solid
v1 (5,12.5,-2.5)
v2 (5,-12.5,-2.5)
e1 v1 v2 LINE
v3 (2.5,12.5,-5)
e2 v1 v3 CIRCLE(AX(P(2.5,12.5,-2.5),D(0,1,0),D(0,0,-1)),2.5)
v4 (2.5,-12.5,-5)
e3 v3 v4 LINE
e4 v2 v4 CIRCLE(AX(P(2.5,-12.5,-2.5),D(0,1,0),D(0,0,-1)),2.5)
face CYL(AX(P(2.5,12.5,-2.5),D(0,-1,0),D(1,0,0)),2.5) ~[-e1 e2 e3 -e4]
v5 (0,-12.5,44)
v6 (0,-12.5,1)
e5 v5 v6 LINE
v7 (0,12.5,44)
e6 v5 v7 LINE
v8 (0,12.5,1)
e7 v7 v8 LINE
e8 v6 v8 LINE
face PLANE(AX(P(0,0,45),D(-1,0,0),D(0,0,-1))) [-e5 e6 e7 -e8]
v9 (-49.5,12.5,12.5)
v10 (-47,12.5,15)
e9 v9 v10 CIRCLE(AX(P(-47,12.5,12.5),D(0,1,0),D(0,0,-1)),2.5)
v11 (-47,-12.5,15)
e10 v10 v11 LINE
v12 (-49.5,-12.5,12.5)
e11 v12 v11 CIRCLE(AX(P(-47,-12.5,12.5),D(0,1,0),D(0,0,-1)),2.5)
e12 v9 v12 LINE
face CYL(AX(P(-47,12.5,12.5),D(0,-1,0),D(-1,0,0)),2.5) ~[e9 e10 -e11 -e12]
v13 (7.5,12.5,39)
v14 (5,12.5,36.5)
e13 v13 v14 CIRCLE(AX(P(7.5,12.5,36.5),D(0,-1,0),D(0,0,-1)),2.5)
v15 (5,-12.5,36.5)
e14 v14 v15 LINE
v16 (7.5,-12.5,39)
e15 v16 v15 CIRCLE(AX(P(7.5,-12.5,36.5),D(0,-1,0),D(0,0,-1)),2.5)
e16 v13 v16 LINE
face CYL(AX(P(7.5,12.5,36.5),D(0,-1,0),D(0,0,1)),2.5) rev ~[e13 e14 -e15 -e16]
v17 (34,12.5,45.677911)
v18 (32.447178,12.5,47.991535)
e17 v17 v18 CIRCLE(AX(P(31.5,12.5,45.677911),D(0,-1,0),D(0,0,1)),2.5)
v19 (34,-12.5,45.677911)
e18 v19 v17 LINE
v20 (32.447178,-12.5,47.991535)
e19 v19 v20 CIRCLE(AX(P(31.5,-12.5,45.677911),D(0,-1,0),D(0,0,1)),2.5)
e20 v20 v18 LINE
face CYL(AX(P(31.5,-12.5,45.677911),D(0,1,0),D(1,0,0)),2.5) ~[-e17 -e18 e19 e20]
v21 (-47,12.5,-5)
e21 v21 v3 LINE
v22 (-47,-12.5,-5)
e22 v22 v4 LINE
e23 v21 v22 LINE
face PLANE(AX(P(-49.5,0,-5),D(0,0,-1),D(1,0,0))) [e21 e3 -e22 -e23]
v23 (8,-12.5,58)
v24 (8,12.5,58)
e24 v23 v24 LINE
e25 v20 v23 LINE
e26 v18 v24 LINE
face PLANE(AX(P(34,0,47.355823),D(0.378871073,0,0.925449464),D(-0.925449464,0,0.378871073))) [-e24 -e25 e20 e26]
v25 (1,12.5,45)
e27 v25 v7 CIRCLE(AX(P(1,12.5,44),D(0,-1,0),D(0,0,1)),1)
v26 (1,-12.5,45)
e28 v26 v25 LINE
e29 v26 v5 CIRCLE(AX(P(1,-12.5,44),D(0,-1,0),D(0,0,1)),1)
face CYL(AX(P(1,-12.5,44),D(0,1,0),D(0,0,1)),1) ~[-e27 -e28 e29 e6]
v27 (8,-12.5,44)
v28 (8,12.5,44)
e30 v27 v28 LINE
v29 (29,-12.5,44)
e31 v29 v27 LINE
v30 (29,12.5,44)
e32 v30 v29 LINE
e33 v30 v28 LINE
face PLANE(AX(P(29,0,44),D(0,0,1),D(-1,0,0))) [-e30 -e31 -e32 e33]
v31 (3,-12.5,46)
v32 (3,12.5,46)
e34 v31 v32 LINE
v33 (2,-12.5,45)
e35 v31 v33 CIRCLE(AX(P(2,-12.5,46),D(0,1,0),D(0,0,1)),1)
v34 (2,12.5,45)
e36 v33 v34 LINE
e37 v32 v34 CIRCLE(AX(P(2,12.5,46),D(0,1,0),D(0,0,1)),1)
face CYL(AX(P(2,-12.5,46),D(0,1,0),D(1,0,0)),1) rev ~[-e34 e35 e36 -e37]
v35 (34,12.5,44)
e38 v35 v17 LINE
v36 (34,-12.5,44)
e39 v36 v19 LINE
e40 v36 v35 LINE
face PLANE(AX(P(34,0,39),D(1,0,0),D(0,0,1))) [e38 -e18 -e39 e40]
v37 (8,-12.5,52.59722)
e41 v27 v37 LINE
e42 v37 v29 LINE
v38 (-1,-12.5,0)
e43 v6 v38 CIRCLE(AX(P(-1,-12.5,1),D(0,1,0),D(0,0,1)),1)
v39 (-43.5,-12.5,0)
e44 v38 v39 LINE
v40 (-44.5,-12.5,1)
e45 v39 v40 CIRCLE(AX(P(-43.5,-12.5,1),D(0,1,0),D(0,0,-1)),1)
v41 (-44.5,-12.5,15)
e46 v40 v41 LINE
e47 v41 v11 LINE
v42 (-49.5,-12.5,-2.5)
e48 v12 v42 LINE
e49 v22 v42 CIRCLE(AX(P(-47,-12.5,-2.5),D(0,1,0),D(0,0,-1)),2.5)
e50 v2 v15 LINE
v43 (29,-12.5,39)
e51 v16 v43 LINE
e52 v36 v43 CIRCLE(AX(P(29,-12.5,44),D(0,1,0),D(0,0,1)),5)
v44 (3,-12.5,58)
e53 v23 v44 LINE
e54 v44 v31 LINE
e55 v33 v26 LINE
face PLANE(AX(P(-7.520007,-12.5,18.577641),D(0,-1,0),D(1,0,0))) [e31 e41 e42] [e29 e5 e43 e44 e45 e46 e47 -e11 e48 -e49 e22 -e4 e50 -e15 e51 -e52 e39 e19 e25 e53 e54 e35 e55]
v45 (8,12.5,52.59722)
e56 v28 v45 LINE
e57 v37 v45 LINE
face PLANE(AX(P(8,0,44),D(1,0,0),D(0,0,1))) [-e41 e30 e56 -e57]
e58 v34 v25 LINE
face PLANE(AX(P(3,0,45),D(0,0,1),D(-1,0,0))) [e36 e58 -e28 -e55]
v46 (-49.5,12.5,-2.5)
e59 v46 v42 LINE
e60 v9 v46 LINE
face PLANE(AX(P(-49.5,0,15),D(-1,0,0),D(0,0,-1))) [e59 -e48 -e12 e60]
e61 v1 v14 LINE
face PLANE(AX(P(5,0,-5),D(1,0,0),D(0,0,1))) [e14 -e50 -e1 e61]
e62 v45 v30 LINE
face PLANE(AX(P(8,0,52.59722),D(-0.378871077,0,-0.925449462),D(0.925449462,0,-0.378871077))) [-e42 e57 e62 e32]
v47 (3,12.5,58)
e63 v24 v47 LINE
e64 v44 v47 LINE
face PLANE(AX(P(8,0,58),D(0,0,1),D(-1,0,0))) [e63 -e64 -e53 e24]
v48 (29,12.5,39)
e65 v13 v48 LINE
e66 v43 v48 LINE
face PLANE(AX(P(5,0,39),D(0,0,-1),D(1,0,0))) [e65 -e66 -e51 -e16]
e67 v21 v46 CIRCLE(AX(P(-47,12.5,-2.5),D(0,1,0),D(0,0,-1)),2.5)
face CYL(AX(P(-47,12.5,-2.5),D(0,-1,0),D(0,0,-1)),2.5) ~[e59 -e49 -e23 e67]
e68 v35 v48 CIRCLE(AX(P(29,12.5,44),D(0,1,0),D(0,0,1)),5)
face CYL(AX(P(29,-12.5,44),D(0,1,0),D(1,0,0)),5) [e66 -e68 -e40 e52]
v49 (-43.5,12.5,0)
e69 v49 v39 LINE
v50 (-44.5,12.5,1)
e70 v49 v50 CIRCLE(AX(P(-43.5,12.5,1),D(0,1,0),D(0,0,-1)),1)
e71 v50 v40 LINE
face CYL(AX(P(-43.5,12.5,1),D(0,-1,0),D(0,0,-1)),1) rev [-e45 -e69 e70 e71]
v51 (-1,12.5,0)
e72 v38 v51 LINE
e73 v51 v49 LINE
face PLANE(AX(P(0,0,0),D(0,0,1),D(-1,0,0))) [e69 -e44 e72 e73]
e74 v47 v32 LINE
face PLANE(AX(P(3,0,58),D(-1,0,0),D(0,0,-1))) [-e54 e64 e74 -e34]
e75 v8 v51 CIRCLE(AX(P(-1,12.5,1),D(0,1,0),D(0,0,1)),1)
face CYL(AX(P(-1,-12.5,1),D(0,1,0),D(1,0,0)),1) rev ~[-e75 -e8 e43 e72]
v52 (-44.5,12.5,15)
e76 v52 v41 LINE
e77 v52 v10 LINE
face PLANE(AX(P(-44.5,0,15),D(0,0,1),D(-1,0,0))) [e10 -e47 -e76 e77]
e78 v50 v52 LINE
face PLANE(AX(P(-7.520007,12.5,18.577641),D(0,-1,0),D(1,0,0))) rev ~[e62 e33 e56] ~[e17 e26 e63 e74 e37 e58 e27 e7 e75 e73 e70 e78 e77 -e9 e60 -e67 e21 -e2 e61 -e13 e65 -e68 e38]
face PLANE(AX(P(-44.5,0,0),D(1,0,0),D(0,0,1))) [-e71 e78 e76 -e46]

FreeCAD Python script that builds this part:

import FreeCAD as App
import Part
import Sketcher
Q = App.Units.Quantity


def edges_at(feature, points):
    """Names of the edges that pass closest to the given points."""
    edges = feature.Shape.Edges
    near = lambda p: min(range(len(edges)), key=lambda i: edges[i].distToShape(Part.Vertex(*p))[0])
    return sorted({f"Edge{near(p) + 1}" for p in points})


def add_polygon(sketch, points):
    """Adds a closed chain of lines whose ends are joined by coincident constraints."""
    first, n = sketch.GeometryCount, len(points)
    for a, b in zip(points, points[1:] + points[:1]):
        sketch.addGeometry(Part.LineSegment(App.Vector(*a, 0), App.Vector(*b, 0)), False)
    for i in range(n):
        sketch.addConstraint(Sketcher.Constraint("Coincident", first + i, 2, first + (i + 1) % n, 1))

doc = App.newDocument("Part")
body = doc.addObject("PartDesign::Body", "Body")

# Sketch on XZ plane
sketch1 = body.newObject("Sketcher::SketchObject", "Sketch")
sketch1.AttachmentSupport = (doc.getObject("XZ_Plane"), [""])
sketch1.MapMode = "FlatFace"
add_polygon(sketch1, [(0, 0), (-44.5, 0), (-44.5, 15), (-49.5, 15), (-49.5, -5), (5, -5), (5, 39), (34, 39), (34, 47.4), (8, 58), (3, 58), (3, 45), (0, 45)])  # lines 0-12
add_polygon(sketch1, [(8, 52.6), (29, 44), (8, 44)])  # lines 13-15
sketch1.addConstraint(Sketcher.Constraint("Horizontal", 0))
sketch1.addConstraint(Sketcher.Constraint("Vertical", 1))
sketch1.addConstraint(Sketcher.Constraint("Horizontal", 2))
sketch1.addConstraint(Sketcher.Constraint("Vertical", 3))
sketch1.addConstraint(Sketcher.Constraint("Horizontal", 4))
sketch1.addConstraint(Sketcher.Constraint("Vertical", 5))
sketch1.addConstraint(Sketcher.Constraint("Horizontal", 6))
sketch1.addConstraint(Sketcher.Constraint("Vertical", 7))
sketch1.addConstraint(Sketcher.Constraint("Horizontal", 9))
sketch1.addConstraint(Sketcher.Constraint("Vertical", 10))
sketch1.addConstraint(Sketcher.Constraint("Horizontal", 11))
sketch1.addConstraint(Sketcher.Constraint("Vertical", 12))
sketch1.addConstraint(Sketcher.Constraint("Horizontal", 14))
sketch1.addConstraint(Sketcher.Constraint("Vertical", 15))
sketch1.addConstraint(Sketcher.Constraint("Coincident", 12, 2, -1, 1))
sketch1.addConstraint(Sketcher.Constraint("Parallel", 8, 13))
sketch1.addConstraint(Sketcher.Constraint("Vertical", 8, 2, 14, 2))
sketch1.addConstraint(Sketcher.Constraint("Equal", 2, 9))
sketch1.addConstraint(Sketcher.Constraint("DistanceX", 2, 2, 2, 1, Q("5 mm")))
sketch1.addConstraint(Sketcher.Constraint("DistanceX", 6, 1, 6, 2, Q("29 mm")))
sketch1.addConstraint(Sketcher.Constraint("DistanceX", 11, 2, 11, 1, Q("3 mm")))
sketch1.addConstraint(Sketcher.Constraint("DistanceX", 14, 2, 14, 1, Q("21 mm")))
sketch1.addConstraint(Sketcher.Constraint("DistanceY", 1, 1, 1, 2, Q("15 mm")))
sketch1.addConstraint(Sketcher.Constraint("DistanceY", 3, 2, 3, 1, Q("20 mm")))
sketch1.addConstraint(Sketcher.Constraint("DistanceY", 5, 1, 5, 2, Q("44 mm")))
sketch1.addConstraint(Sketcher.Constraint("DistanceY", 10, 2, 10, 1, Q("13 mm")))
sketch1.addConstraint(Sketcher.Constraint("DistanceY", 12, 2, 12, 1, Q("45 mm")))
sketch1.addConstraint(Sketcher.Constraint("DistanceX", 0, 2, 0, 1, Q("44.5 mm")))
sketch1.addConstraint(Sketcher.Constraint("DistanceX", 4, 1, 4, 2, Q("54.5 mm")))
sketch1.addConstraint(Sketcher.Constraint("DistanceY", -1, 1, 13, 2, Q("44 mm")))
sketch1.addConstraint(Sketcher.Constraint("DistanceY", 15, 1, 15, 2, Q("8.59722 mm")))
pad1 = body.newObject("PartDesign::Pad", "Pad")
pad1.Profile = sketch1
pad1.Length = 25
pad1.Midplane = True
doc.recompute()

fillet = body.newObject("PartDesign::Fillet", "Fillet")
fillet.Base = (pad1, edges_at(pad1, [(34, 0, 39)]))
fillet.Radius = 5
doc.recompute()

fillet2 = body.newObject("PartDesign::Fillet", "Fillet001")
fillet2.Base = (fillet, edges_at(fillet, [
    (5, 0, -5),
    (-49.5, 0, -5),
    (-49.5, 0, 15),
    (34, 0, 47.356),
    (5, 0, 39),
]))
fillet2.Radius = 2.5
doc.recompute()

fillet3 = body.newObject("PartDesign::Fillet", "Fillet002")
fillet3.Base = (fillet2, edges_at(fillet2, [
    (3, 0, 45),
    (0, 0, 45),
    (0, 0, 0),
    (-44.5, 0, 0),
]))
fillet3.Radius = 1

doc.recompute()
